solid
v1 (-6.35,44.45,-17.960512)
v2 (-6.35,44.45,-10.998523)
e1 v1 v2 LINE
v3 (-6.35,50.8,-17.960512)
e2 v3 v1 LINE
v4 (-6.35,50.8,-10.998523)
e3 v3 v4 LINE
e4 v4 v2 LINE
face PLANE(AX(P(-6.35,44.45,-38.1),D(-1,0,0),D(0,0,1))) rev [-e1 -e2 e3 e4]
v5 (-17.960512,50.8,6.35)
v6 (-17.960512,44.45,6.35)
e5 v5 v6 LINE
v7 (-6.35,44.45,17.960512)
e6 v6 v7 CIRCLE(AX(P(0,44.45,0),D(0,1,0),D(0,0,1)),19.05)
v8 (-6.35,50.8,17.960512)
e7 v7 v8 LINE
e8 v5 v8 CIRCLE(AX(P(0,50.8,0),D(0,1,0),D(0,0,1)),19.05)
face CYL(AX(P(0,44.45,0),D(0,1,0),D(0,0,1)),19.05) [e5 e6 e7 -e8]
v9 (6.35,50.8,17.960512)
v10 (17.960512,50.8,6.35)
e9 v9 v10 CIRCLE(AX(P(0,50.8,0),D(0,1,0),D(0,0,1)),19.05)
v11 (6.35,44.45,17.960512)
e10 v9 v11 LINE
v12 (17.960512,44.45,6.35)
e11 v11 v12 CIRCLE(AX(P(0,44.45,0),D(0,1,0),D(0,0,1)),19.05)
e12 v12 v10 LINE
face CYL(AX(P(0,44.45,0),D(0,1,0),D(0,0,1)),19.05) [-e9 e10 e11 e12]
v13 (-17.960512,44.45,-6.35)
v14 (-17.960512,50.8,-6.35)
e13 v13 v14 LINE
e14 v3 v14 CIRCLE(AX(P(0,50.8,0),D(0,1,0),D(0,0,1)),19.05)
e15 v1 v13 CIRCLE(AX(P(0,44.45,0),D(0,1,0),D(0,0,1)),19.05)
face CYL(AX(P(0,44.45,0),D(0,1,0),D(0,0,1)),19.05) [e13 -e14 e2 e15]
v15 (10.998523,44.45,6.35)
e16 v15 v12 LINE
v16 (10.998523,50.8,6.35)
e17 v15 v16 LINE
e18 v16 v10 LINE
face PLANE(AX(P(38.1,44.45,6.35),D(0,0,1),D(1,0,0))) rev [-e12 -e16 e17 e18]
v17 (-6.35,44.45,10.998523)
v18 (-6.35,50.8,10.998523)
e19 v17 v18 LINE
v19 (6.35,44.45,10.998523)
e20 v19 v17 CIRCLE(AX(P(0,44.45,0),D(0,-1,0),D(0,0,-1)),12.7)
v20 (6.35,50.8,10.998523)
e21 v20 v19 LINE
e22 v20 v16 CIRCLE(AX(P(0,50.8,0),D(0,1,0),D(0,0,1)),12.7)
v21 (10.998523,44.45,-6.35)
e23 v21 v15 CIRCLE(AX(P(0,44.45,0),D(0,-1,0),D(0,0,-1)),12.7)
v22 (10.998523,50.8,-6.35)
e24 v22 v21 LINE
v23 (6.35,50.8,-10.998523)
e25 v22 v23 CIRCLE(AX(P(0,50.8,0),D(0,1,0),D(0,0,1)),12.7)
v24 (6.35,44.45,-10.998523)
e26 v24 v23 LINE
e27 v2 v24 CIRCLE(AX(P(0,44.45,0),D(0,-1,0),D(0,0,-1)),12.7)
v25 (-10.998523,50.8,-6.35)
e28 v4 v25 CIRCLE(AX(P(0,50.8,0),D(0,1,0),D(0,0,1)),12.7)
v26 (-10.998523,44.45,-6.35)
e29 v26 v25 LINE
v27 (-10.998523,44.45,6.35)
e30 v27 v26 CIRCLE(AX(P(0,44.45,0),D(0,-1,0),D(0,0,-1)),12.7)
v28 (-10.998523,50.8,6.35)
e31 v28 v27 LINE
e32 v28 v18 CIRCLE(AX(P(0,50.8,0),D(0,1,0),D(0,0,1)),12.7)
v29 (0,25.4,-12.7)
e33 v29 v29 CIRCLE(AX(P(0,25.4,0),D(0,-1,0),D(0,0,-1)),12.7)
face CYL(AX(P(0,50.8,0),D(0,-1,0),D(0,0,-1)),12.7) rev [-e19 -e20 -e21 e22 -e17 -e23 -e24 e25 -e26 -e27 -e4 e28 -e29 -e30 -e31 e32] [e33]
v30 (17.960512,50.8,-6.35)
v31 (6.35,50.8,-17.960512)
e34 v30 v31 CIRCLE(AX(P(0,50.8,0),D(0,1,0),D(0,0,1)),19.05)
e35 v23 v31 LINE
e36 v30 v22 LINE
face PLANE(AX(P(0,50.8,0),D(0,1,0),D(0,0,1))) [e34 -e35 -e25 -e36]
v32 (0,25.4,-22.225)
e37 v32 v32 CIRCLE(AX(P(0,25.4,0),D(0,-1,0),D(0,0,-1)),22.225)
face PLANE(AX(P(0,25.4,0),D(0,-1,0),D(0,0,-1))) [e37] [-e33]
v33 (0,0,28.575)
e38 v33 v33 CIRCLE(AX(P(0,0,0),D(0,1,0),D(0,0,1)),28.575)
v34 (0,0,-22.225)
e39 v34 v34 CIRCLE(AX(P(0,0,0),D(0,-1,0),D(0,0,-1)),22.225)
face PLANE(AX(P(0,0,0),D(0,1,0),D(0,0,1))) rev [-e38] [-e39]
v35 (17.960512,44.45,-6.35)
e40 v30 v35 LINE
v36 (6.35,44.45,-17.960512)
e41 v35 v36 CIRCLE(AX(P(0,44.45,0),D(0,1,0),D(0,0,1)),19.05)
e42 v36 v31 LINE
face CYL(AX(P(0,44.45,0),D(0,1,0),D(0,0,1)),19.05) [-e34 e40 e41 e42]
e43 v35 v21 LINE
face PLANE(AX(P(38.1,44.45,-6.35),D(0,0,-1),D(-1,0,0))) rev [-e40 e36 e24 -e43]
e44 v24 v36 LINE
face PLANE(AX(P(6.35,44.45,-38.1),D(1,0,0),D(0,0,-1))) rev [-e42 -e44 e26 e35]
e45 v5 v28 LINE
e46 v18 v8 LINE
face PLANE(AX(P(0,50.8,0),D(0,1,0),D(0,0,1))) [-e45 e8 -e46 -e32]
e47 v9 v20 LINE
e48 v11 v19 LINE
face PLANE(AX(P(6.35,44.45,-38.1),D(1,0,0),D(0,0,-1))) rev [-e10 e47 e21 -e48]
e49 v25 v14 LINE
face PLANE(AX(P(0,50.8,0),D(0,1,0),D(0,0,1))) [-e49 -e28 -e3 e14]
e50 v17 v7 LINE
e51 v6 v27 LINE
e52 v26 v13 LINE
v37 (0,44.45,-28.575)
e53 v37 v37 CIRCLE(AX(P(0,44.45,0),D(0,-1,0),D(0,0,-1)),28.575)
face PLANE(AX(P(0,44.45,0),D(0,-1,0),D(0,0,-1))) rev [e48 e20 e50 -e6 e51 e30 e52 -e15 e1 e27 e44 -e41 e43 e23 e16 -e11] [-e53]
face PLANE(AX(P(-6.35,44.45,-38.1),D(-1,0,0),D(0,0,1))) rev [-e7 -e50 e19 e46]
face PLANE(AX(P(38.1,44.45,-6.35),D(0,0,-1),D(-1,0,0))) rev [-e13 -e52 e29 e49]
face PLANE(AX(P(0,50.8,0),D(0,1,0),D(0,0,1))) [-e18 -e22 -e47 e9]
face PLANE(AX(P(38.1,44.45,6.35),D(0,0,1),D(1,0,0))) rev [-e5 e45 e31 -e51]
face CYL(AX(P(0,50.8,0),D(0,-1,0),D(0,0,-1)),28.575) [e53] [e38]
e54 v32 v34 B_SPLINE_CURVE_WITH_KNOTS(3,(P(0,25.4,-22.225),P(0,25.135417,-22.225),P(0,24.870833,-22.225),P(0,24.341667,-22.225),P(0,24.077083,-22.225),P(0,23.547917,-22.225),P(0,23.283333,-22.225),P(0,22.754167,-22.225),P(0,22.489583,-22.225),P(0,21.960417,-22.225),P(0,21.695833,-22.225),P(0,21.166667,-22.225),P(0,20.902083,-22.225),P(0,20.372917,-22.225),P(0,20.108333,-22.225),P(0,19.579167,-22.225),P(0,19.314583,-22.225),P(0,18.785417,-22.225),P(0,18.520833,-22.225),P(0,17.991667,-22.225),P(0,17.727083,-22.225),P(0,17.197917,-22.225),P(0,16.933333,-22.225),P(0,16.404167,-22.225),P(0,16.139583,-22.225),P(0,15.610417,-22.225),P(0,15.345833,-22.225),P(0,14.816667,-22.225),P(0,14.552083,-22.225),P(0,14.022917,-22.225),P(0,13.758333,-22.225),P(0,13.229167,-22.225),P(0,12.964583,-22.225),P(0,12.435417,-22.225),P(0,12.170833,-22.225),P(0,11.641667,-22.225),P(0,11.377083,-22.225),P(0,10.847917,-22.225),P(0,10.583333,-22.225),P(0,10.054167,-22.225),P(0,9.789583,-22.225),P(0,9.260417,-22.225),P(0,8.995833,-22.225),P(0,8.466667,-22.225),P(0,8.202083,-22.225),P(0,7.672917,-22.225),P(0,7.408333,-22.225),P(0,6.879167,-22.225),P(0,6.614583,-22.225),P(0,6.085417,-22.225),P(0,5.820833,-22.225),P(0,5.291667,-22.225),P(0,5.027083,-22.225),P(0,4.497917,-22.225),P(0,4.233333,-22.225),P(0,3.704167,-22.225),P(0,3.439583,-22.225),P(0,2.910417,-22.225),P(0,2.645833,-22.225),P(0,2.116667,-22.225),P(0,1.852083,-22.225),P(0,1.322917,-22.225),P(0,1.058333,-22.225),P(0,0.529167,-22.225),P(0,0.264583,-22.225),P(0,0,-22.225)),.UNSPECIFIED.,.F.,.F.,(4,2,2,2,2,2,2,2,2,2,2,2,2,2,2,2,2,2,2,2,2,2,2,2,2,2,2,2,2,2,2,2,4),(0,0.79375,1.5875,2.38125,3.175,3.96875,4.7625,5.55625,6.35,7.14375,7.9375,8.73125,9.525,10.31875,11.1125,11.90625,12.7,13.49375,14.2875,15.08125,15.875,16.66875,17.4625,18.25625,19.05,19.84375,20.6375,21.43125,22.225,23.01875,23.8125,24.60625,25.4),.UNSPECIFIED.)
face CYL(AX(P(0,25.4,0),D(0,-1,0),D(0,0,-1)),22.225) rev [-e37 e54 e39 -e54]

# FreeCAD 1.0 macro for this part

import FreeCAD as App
import Part
import Sketcher

V = App.Vector
Q = App.Units.Quantity

doc = App.newDocument("Part")
params = doc.addObject("Spreadsheet::Sheet", "Params")
for row, (alias, value) in enumerate([
    ("sketch1_diameter", "1 in"),
    ("sketch1_diameter2", "2.25 in"),
    ("pad1_length", "2 in"),
    ("sketch2_width", "3 in"),
    ("sketch2_height", "0.5 in"),
    ("pocket1_length", "0.25 in"),
    ("sketch3_diameter", "1.75 in"),
    ("pocket2_length", "1 in"),
    ("sketch4_diameter", "1.5 in"),
    ("sketch4_diameter2", "2.25 in"),
    ("pocket3_length", "0.25 in"),
], start=1):
    params.set(f"A{row}", alias)
    params.set(f"B{row}", "=" + value)
    params.setAlias(f"B{row}", alias)

body = doc.addObject("PartDesign::Body", "Body")

sketch1 = doc.addObject("Sketcher::SketchObject", "Sketch")
body.addObject(sketch1)
sketch1.AttachmentSupport = (doc.XZ_Plane, [""])
sketch1.MapMode = "FlatFace"
sketch1.addGeometry(Part.Circle(V(0, 0, 0), V(0, 0, 1), 29), False)
sketch1.addGeometry(Part.Circle(V(0, 0, 0), V(0, 0, 1), 13), False)
sketch1.addConstraint(Sketcher.Constraint("Coincident", 0, 3, -1, 1))
sketch1.addConstraint(Sketcher.Constraint("Coincident", 1, 3, -1, 1))
sketch1.addConstraint(Sketcher.Constraint("Diameter", 1, Q("1 in")))
sketch1.addConstraint(Sketcher.Constraint("Diameter", 0, Q("2.25 in")))
sketch1.setExpression("Constraints[2]", "Params.sketch1_diameter")
sketch1.setExpression("Constraints[3]", "Params.sketch1_diameter2")
pad1 = doc.addObject("PartDesign::Pad", "Pad")
body.addObject(pad1)
pad1.Profile = sketch1
pad1.setExpression("Length", "Params.pad1_length")
pad1.Reversed = True

sketch2 = doc.addObject("Sketcher::SketchObject", "Sketch001")
body.addObject(sketch2)
sketch2.AttachmentSupport = (doc.XZ_Plane, [""])
sketch2.MapMode = "FlatFace"
sketch2.AttachmentOffset = App.Placement(V(0, 0, -2 * 25.4), App.Rotation())
sketch2.addGeometry(Part.LineSegment(V(-38, -6, 0), V(-38, 6, 0)), False)
sketch2.addGeometry(Part.LineSegment(V(-38, 6, 0), V(38, 6, 0)), False)
sketch2.addGeometry(Part.LineSegment(V(38, 6, 0), V(38, -6, 0)), False)
sketch2.addGeometry(Part.LineSegment(V(38, -6, 0), V(-38, -6, 0)), False)
sketch2.addConstraint(Sketcher.Constraint("Coincident", 0, 2, 1, 1))
sketch2.addConstraint(Sketcher.Constraint("Coincident", 1, 2, 2, 1))
sketch2.addConstraint(Sketcher.Constraint("Coincident", 2, 2, 3, 1))
sketch2.addConstraint(Sketcher.Constraint("Coincident", 3, 2, 0, 1))
sketch2.addConstraint(Sketcher.Constraint("Vertical", 0))
sketch2.addConstraint(Sketcher.Constraint("Horizontal", 1))
sketch2.addConstraint(Sketcher.Constraint("Vertical", 2))
sketch2.addConstraint(Sketcher.Constraint("Horizontal", 3))
sketch2.addConstraint(Sketcher.Constraint("Symmetric", 0, 2, 2, 2, -1, 1))
sketch2.addConstraint(Sketcher.Constraint("DistanceX", 1, 1, 1, 2, Q("3 in")))
sketch2.addConstraint(Sketcher.Constraint("DistanceY", 0, 1, 0, 2, Q("0.5 in")))
sketch2.setExpression("Constraints[9]", "Params.sketch2_width")
sketch2.setExpression("Constraints[10]", "Params.sketch2_height")
pocket1 = doc.addObject("PartDesign::Pocket", "Pocket")
body.addObject(pocket1)
pocket1.Profile = sketch2
pocket1.setExpression("Length", "Params.pocket1_length")
pocket1.Reversed = True
doc.recompute()

polarpattern = doc.addObject("PartDesign::PolarPattern", "PolarPattern")
body.addObject(polarpattern)
polarpattern.Originals = [pocket1]
polarpattern.Axis = (doc.Y_Axis, [""])
polarpattern.Angle = 90
polarpattern.Occurrences = 2
body.Tip = polarpattern

sketch3 = doc.addObject("Sketcher::SketchObject", "Sketch002")
body.addObject(sketch3)
sketch3.AttachmentSupport = (doc.XZ_Plane, [""])
sketch3.MapMode = "FlatFace"
sketch3.addGeometry(Part.Circle(V(0, 0, 0), V(0, 0, 1), 22), False)
sketch3.addConstraint(Sketcher.Constraint("Coincident", 0, 3, -1, 1))
sketch3.addConstraint(Sketcher.Constraint("Diameter", 0, Q("1.75 in")))
sketch3.setExpression("Constraints[1]", "Params.sketch3_diameter")
pocket2 = doc.addObject("PartDesign::Pocket", "Pocket001")
body.addObject(pocket2)
pocket2.Profile = sketch3
pocket2.setExpression("Length", "Params.pocket2_length")

sketch4 = doc.addObject("Sketcher::SketchObject", "Sketch003")
body.addObject(sketch4)
sketch4.AttachmentSupport = (doc.XZ_Plane, [""])
sketch4.MapMode = "FlatFace"
sketch4.AttachmentOffset = App.Placement(V(0, 0, -1.75 * 25.4), App.Rotation())
sketch4.addGeometry(Part.Circle(V(0, 0, 0), V(0, 0, 1), 29), False)
sketch4.addGeometry(Part.Circle(V(0, 0, 0), V(0, 0, 1), 19), False)
sketch4.addConstraint(Sketcher.Constraint("Coincident", 0, 3, -1, 1))
sketch4.addConstraint(Sketcher.Constraint("Coincident", 1, 3, -1, 1))
sketch4.addConstraint(Sketcher.Constraint("Diameter", 1, Q("1.5 in")))
sketch4.addConstraint(Sketcher.Constraint("Diameter", 0, Q("2.25 in")))
sketch4.setExpression("Constraints[2]", "Params.sketch4_diameter")
sketch4.setExpression("Constraints[3]", "Params.sketch4_diameter2")
pocket3 = doc.addObject("PartDesign::Pocket", "Pocket002")
body.addObject(pocket3)
pocket3.Profile = sketch4
pocket3.setExpression("Length", "Params.pocket3_length")

doc.recompute()
